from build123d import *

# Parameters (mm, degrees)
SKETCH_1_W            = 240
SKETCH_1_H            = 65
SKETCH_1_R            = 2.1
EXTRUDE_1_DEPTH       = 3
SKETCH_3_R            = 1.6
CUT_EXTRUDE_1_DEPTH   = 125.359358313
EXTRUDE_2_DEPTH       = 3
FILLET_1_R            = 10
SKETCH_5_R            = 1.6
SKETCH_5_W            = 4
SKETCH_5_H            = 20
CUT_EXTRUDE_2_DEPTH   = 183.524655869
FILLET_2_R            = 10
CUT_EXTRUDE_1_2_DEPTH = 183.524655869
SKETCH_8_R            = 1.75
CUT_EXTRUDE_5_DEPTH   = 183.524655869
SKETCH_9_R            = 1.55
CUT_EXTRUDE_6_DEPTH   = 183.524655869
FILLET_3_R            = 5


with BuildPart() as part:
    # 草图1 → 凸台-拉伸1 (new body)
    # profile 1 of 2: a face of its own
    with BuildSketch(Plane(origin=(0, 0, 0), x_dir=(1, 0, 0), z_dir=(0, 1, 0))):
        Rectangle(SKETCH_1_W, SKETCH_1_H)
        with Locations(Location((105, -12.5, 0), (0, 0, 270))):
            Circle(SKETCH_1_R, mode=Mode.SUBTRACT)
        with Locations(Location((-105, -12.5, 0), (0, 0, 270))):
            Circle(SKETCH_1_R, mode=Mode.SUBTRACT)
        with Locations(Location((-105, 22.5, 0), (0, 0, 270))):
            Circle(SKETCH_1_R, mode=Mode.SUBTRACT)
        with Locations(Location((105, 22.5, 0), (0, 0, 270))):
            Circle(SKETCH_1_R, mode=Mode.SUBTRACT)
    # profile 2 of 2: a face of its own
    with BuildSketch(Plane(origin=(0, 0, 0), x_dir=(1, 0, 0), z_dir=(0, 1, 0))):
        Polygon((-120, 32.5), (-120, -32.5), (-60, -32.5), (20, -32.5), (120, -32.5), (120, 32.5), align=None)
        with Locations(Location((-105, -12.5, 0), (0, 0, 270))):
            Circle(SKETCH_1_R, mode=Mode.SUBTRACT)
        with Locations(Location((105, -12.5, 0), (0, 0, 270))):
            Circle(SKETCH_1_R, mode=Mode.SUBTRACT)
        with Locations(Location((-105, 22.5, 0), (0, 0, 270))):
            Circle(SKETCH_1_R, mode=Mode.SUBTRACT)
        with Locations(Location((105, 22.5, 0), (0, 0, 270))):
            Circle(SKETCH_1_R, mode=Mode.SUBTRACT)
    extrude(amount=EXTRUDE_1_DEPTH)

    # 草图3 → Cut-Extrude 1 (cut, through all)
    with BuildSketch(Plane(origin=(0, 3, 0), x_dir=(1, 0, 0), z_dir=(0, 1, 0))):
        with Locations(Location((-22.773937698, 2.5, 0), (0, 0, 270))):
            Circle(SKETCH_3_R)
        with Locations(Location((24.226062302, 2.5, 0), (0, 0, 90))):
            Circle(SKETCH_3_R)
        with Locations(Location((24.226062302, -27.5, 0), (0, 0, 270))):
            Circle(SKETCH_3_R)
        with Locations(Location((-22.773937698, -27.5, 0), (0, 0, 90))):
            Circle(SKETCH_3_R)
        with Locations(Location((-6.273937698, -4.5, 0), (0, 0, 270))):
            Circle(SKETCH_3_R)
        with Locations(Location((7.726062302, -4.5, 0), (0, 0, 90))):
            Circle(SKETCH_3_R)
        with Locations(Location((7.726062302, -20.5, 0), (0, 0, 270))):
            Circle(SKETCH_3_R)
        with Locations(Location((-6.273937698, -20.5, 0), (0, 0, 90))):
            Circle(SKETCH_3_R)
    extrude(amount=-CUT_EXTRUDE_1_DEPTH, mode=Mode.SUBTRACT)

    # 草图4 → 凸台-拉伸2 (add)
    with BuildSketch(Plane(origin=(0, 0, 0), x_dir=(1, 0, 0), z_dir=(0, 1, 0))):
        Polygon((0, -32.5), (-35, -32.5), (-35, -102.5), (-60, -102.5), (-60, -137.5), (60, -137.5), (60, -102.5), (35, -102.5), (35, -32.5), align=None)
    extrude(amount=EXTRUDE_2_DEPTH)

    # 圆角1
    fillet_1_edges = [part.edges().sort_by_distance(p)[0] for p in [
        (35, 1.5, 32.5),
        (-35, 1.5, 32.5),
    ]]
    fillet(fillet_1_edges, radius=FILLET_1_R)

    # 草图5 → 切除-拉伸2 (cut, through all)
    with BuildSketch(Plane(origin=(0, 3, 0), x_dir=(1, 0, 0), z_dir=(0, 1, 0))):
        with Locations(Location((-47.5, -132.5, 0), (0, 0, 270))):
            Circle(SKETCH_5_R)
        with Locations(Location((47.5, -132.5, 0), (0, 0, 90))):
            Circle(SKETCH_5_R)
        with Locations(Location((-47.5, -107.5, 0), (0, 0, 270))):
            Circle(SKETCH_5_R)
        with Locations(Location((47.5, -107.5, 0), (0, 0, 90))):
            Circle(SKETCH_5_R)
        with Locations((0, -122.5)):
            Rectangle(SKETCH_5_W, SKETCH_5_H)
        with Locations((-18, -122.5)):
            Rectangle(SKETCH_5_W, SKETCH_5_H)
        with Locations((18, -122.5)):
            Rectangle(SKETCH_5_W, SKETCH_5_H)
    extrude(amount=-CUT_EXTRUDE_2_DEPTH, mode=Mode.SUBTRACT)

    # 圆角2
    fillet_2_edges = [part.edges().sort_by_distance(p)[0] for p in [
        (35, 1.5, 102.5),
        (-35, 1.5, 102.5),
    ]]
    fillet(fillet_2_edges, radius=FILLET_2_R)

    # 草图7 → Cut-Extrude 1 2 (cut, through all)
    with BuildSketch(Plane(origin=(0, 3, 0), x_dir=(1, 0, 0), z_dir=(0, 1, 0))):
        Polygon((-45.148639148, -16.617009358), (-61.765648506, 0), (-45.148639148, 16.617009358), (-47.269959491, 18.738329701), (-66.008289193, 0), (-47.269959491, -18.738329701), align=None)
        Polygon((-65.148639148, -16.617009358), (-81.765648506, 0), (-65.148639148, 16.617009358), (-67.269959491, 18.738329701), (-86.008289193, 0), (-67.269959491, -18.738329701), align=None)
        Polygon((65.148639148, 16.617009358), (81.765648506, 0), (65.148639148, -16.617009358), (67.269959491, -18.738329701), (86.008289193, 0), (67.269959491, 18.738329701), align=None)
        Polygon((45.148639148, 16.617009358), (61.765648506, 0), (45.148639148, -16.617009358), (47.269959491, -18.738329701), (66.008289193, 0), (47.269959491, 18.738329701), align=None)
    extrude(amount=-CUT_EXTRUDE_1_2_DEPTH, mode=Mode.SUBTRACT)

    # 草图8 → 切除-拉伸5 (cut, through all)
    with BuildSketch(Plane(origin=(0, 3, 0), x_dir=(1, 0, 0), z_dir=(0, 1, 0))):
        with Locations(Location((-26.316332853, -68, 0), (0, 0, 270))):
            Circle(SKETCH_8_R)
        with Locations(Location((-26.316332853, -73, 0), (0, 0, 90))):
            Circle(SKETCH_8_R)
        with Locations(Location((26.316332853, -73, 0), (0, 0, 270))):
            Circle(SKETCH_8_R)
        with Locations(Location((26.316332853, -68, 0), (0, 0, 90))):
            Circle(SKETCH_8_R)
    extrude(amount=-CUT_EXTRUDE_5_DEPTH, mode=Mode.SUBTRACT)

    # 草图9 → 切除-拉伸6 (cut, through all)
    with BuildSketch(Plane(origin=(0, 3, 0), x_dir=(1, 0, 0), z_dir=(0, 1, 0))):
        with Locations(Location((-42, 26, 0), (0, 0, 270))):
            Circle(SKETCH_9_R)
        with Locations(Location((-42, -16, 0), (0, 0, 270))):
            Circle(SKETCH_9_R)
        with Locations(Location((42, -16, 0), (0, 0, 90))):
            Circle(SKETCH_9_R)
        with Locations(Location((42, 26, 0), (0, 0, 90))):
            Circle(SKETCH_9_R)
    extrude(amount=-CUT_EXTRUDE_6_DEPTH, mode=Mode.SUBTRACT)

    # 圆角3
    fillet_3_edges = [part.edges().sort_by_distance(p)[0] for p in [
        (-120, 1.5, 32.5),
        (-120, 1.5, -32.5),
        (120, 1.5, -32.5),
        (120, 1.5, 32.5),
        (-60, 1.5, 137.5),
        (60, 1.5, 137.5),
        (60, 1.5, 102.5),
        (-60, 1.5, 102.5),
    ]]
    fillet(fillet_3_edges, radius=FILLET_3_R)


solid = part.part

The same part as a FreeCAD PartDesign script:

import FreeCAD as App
import Part
import Sketcher

V = App.Vector


def edges_at(feature, points):
    """Names of the edges that pass closest to the given points."""
    edges = feature.Shape.Edges
    near = lambda p: min(range(len(edges)), key=lambda i: edges[i].distToShape(Part.Vertex(*p))[0])
    return sorted({f"Edge{near(p) + 1}" for p in points})


def add_polygon(sketch, points):
    """Adds a closed chain of lines whose ends are joined by coincident constraints."""
    first, n = sketch.GeometryCount, len(points)
    for a, b in zip(points, points[1:] + points[:1]):
        sketch.addGeometry(Part.LineSegment(App.Vector(*a, 0), App.Vector(*b, 0)), False)
    for i in range(n):
        sketch.addConstraint(Sketcher.Constraint("Coincident", first + i, 2, first + (i + 1) % n, 1))

doc = App.newDocument("Part")
params = doc.addObject("Spreadsheet::Sheet", "Params")
for row, (alias, value) in enumerate([
    ("sketch1_diameter", "4.2 mm"),
    ("sketch1_width", "240 mm"),
    ("sketch1_height", "65 mm"),
    ("pad1_length", "3 mm"),
    ("sketch2_diameter", "3.2 mm"),
    ("sketch3_width", "25 mm"),
    ("sketch3_width2", "120 mm"),
    ("sketch3_height", "35 mm"),
    ("pad2_length", "3 mm"),
    ("fillet_radius", "10 mm"),
    ("sketch4_diameter", "3.2 mm"),
    ("sketch4_width", "4 mm"),
    ("sketch4_height", "20 mm"),
    ("fillet2_radius", "10 mm"),
    ("sketch5_length", "3 mm"),
    ("sketch5_length2", "23.5 mm"),
    ("sketch6_diameter", "3.5 mm"),
    ("sketch7_diameter", "3.1 mm"),
    ("fillet3_radius", "5 mm"),
], start=1):
    params.set(f"A{row}", alias)
    params.set(f"B{row}", "=" + value)
    params.setAlias(f"B{row}", alias)

body = doc.addObject("PartDesign::Body", "Body")

sketch1 = body.newObject("Sketcher::SketchObject", "Sketch")
sketch1.AttachmentSupport = (doc.getObject("XZ_Plane"), [""])
sketch1.MapMode = "FlatFace"
add_polygon(sketch1, [(-120, -32.5), (-120, 32.5), (120, 32.5), (120, -32.5)])
sketch1.addGeometry(Part.Circle(V(-105, 12.5, 0), V(0, 0, 1), 2.1), False)
sketch1.addGeometry(Part.Circle(V(105, 12.5, 0), V(0, 0, 1), 2.1), False)
sketch1.addGeometry(Part.Circle(V(-105, -22.5, 0), V(0, 0, 1), 2.1), False)
sketch1.addGeometry(Part.Circle(V(105, -22.5, 0), V(0, 0, 1), 2.1), False)
sketch1.addConstraint([
    Sketcher.Constraint("Vertical", 0),
    Sketcher.Constraint("Horizontal", 1),
    Sketcher.Constraint("Vertical", 2),
    Sketcher.Constraint("Horizontal", 3),
    Sketcher.Constraint("Equal", 4, 5),
    Sketcher.Constraint("Equal", 5, 6),
    Sketcher.Constraint("Equal", 6, 7),
    Sketcher.Constraint("Symmetric", 0, 2, 2, 2, -1, 1),
    Sketcher.Constraint("Symmetric", 4, 3, 5, 3, -2),
    Sketcher.Constraint("Symmetric", 6, 3, 7, 3, -2),
    Sketcher.Constraint("Vertical", 4, 3, 6, 3),
    Sketcher.Constraint("Diameter", 4, 4.2),
    Sketcher.Constraint("DistanceX", 1, 1, 1, 2, 240.0),
    Sketcher.Constraint("DistanceY", 0, 1, 0, 2, 65.0),
    Sketcher.Constraint("DistanceX", 4, 3, -1, 1, 105.0),
    Sketcher.Constraint("DistanceY", 6, 3, 4, 3, 35.0),
    Sketcher.Constraint("DistanceY", 4, 3, 0, 2, 20.0),
])
sketch1.setExpression("Constraints[15]", "Params.sketch1_diameter")
sketch1.setExpression("Constraints[16]", "Params.sketch1_width")
sketch1.setExpression("Constraints[17]", "Params.sketch1_height")
pad1 = body.newObject("PartDesign::Pad", "Pad")
pad1.Profile = sketch1
pad1.setExpression("Length", "Params.pad1_length")
pad1.Reversed = True

sketch2 = body.newObject("Sketcher::SketchObject", "Sketch001")
sketch2.AttachmentSupport = (doc.getObject("XZ_Plane"), [""])
sketch2.MapMode = "FlatFace"
sketch2.AttachmentOffset = App.Placement(V(0, 0, -3), App.Rotation())
sketch2.addGeometry([
    Part.Circle(V(-22.773938, -2.5, 0), V(0, 0, 1), 1.6),
    Part.Circle(V(24.226062, -2.5, 0), V(0, 0, 1), 1.6),
    Part.Circle(V(24.226062, 27.5, 0), V(0, 0, 1), 1.6),
    Part.Circle(V(-22.773938, 27.5, 0), V(0, 0, 1), 1.6),
    Part.Circle(V(-6.273938, 4.5, 0), V(0, 0, 1), 1.6),
    Part.Circle(V(7.726062, 4.5, 0), V(0, 0, 1), 1.6),
    Part.Circle(V(7.726062, 20.5, 0), V(0, 0, 1), 1.6),
    Part.Circle(V(-6.273938, 20.5, 0), V(0, 0, 1), 1.6),
], False)
sketch2.addConstraint([
    Sketcher.Constraint("Equal", 0, 1),
    Sketcher.Constraint("Equal", 1, 2),
    Sketcher.Constraint("Equal", 2, 3),
    Sketcher.Constraint("Equal", 3, 4),
    Sketcher.Constraint("Equal", 4, 5),
    Sketcher.Constraint("Equal", 5, 6),
    Sketcher.Constraint("Equal", 6, 7),
    Sketcher.Constraint("Horizontal", 0, 3, 1, 3),
    Sketcher.Constraint("Horizontal", 2, 3, 3, 3),
    Sketcher.Constraint("Horizontal", 4, 3, 5, 3),
    Sketcher.Constraint("Horizontal", 6, 3, 7, 3),
    Sketcher.Constraint("Vertical", 1, 3, 2, 3),
    Sketcher.Constraint("Vertical", 0, 3, 3, 3),
    Sketcher.Constraint("Vertical", 5, 3, 6, 3),
    Sketcher.Constraint("Vertical", 4, 3, 7, 3),
    Sketcher.Constraint("Diameter", 0, 3.2),
    Sketcher.Constraint("DistanceX", 0, 3, 1, 3, 47.0),
    Sketcher.Constraint("DistanceY", 1, 3, 2, 3, 30.0),
    Sketcher.Constraint("DistanceY", 0, 3, 4, 3, 7.0),
    Sketcher.Constraint("DistanceX", 4, 3, 5, 3, 14.0),
    Sketcher.Constraint("DistanceY", 5, 3, 6, 3, 16.0),
    Sketcher.Constraint("DistanceY", 0, 3, -1, 1, 2.5),
    Sketcher.Constraint("DistanceX", 0, 3, 4, 3, 16.5),
    Sketcher.Constraint("DistanceX", 0, 3, -1, 1, 22.773938),
])
sketch2.setExpression("Constraints[15]", "Params.sketch2_diameter")
pocket1 = body.newObject("PartDesign::Pocket", "Pocket")
pocket1.Profile = sketch2
pocket1.Type = "ThroughAll"
pocket1.Reversed = True

sketch3 = body.newObject("Sketcher::SketchObject", "Sketch002")
sketch3.AttachmentSupport = (doc.getObject("XZ_Plane"), [""])
sketch3.MapMode = "FlatFace"
add_polygon(sketch3, [(-35, 32.5), (-35, 102.5), (-60, 102.5), (-60, 137.5), (60, 137.5), (60, 102.5), (35, 102.5), (35, 32.5)])
sketch3.addConstraint([
    Sketcher.Constraint("Vertical", 0),
    Sketcher.Constraint("Horizontal", 1),
    Sketcher.Constraint("Vertical", 2),
    Sketcher.Constraint("Horizontal", 3),
    Sketcher.Constraint("Vertical", 4),
    Sketcher.Constraint("Horizontal", 5),
    Sketcher.Constraint("Vertical", 6),
    Sketcher.Constraint("Horizontal", 7),
    Sketcher.Constraint("Symmetric", 1, 2, 4, 2, -2),
    Sketcher.Constraint("Equal", 1, 5),
    Sketcher.Constraint("Equal", 7, 0),
    Sketcher.Constraint("DistanceX", 1, 2, 1, 1, 25.0),
    Sketcher.Constraint("DistanceX", 3, 1, 3, 2, 120.0),
    Sketcher.Constraint("DistanceY", 2, 1, 2, 2, 35.0),
    Sketcher.Constraint("DistanceY", -1, 1, 0, 2, 102.5),
])
sketch3.setExpression("Constraints[19]", "Params.sketch3_width")
sketch3.setExpression("Constraints[20]", "Params.sketch3_width2")
sketch3.setExpression("Constraints[21]", "Params.sketch3_height")
pad2 = body.newObject("PartDesign::Pad", "Pad001")
pad2.Profile = sketch3
pad2.setExpression("Length", "Params.pad2_length")
pad2.Reversed = True
doc.recompute()

fillet = body.newObject("PartDesign::Fillet", "Fillet")
fillet.Base = (pad2, edges_at(pad2, [(35, 1.5, 32.5), (-35, 1.5, 32.5)]))
fillet.setExpression("Radius", "Params.fillet_radius")

sketch4 = body.newObject("Sketcher::SketchObject", "Sketch003")
sketch4.AttachmentSupport = (doc.getObject("XZ_Plane"), [""])
sketch4.MapMode = "FlatFace"
sketch4.AttachmentOffset = App.Placement(V(0, 0, -3), App.Rotation())
sketch4.addGeometry(Part.Circle(V(-47.5, 132.5, 0), V(0, 0, 1), 1.6), False)
sketch4.addGeometry(Part.Circle(V(47.5, 132.5, 0), V(0, 0, 1), 1.6), False)
sketch4.addGeometry(Part.Circle(V(-47.5, 107.5, 0), V(0, 0, 1), 1.6), False)
sketch4.addGeometry(Part.Circle(V(47.5, 107.5, 0), V(0, 0, 1), 1.6), False)
add_polygon(sketch4, [(-2, 112.5), (-2, 132.5), (2, 132.5), (2, 112.5)])
add_polygon(sketch4, [(-20, 112.5), (-20, 132.5), (-16, 132.5), (-16, 112.5)])
add_polygon(sketch4, [(16, 112.5), (16, 132.5), (20, 132.5), (20, 112.5)])
sketch4.addConstraint([
    Sketcher.Constraint("Vertical", 4),
    Sketcher.Constraint("Horizontal", 5),
    Sketcher.Constraint("Vertical", 6),
    Sketcher.Constraint("Horizontal", 7),
    Sketcher.Constraint("Vertical", 8),
    Sketcher.Constraint("Horizontal", 9),
    Sketcher.Constraint("Vertical", 10),
    Sketcher.Constraint("Horizontal", 11),
    Sketcher.Constraint("Vertical", 12),
    Sketcher.Constraint("Horizontal", 13),
    Sketcher.Constraint("Vertical", 14),
    Sketcher.Constraint("Horizontal", 15),
    Sketcher.Constraint("Equal", 0, 1),
    Sketcher.Constraint("Equal", 1, 2),
    Sketcher.Constraint("Equal", 2, 3),
    Sketcher.Constraint("Symmetric", 0, 3, 1, 3, -2),
    Sketcher.Constraint("Symmetric", 2, 3, 3, 3, -2),
    Sketcher.Constraint("Symmetric", 9, 2, 12, 2, -2),
    Sketcher.Constraint("Symmetric", 11, 2, 14, 2, -2),
    Sketcher.Constraint("Horizontal", 1, 3, 4, 2),
    Sketcher.Constraint("Horizontal", 5, 2, 8, 2),
    Sketcher.Constraint("Horizontal", 7, 2, 10, 2),
    Sketcher.Constraint("Vertical", 0, 3, 2, 3),
    Sketcher.Constraint("Equal", 7, 9),
    Sketcher.Constraint("Diameter", 0, 3.2),
    Sketcher.Constraint("DistanceX", 5, 1, 5, 2, 4.0),
    Sketcher.Constraint("DistanceY", 4, 1, 4, 2, 20.0),
    Sketcher.Constraint("DistanceX", 4, 2, -1, 1, 2.0),
    Sketcher.Constraint("DistanceX", 8, 2, -1, 1, 20.0),
    Sketcher.Constraint("DistanceX", 0, 3, 1, 3, 95.0),
    Sketcher.Constraint("DistanceY", 2, 3, 0, 3, 25.0),
    Sketcher.Constraint("DistanceY", -1, 1, 0, 3, 132.5),
])
sketch4.setExpression("Constraints[36]", "Params.sketch4_diameter")
sketch4.setExpression("Constraints[37]", "Params.sketch4_width")
sketch4.setExpression("Constraints[38]", "Params.sketch4_height")
pocket2 = body.newObject("PartDesign::Pocket", "Pocket001")
pocket2.Profile = sketch4
pocket2.Type = "ThroughAll"
pocket2.Reversed = True
doc.recompute()

fillet2 = body.newObject("PartDesign::Fillet", "Fillet001")
fillet2.Base = (pocket2, edges_at(pocket2, [(35, 1.5, 102.5), (-35, 1.5, 102.5)]))
fillet2.setExpression("Radius", "Params.fillet2_radius")

sketch5 = body.newObject("Sketcher::SketchObject", "Sketch004")
sketch5.AttachmentSupport = (doc.getObject("XZ_Plane"), [""])
sketch5.MapMode = "FlatFace"
sketch5.AttachmentOffset = App.Placement(V(0, 0, -3), App.Rotation())
add_polygon(sketch5, [(-45.148639, 16.617009), (-61.765649, 0), (-45.148639, -16.617009), (-47.269959, -18.73833), (-66.008289, 0), (-47.269959, 18.73833)])
add_polygon(sketch5, [(-65.148639, 16.617009), (-81.765649, 0), (-65.148639, -16.617009), (-67.269959, -18.73833), (-86.008289, 0), (-67.269959, 18.73833)])
add_polygon(sketch5, [(65.148639, -16.617009), (81.765649, 0), (65.148639, 16.617009), (67.269959, 18.73833), (86.008289, 0), (67.269959, -18.73833)])
add_polygon(sketch5, [(45.148639, -16.617009), (61.765649, 0), (45.148639, 16.617009), (47.269959, 18.73833), (66.008289, 0), (47.269959, -18.73833)])
sketch5.addConstraint([
    Sketcher.Constraint("Symmetric", 6, 2, 12, 2, -1, 1),
    Sketcher.Constraint("Symmetric", 7, 2, 13, 2, -1, 1),
    Sketcher.Constraint("Symmetric", 8, 2, 14, 2, -1, 1),
    Sketcher.Constraint("Symmetric", 9, 2, 15, 2, -1, 1),
    Sketcher.Constraint("Symmetric", 10, 2, 16, 2, -1, 1),
    Sketcher.Constraint("Symmetric", 11, 2, 17, 2, -1, 1),
    Sketcher.Constraint("Symmetric", 0, 2, 18, 2, -1, 1),
    Sketcher.Constraint("Symmetric", 1, 2, 19, 2, -1, 1),
    Sketcher.Constraint("Symmetric", 2, 2, 20, 2, -1, 1),
    Sketcher.Constraint("Symmetric", 3, 2, 21, 2, -1, 1),
    Sketcher.Constraint("Symmetric", 4, 2, 22, 2, -1, 1),
    Sketcher.Constraint("Symmetric", 5, 2, 23, 2, -1, 1),
    Sketcher.Constraint("Symmetric", 11, 2, 13, 2, -2),
    Sketcher.Constraint("Symmetric", 10, 2, 14, 2, -2),
    Sketcher.Constraint("Symmetric", 5, 2, 19, 2, -2),
    Sketcher.Constraint("Symmetric", 4, 2, 20, 2, -2),
    Sketcher.Constraint("PointOnObject", 0, 2, -1),
    Sketcher.Constraint("PointOnObject", 3, 2, -1),
    Sketcher.Constraint("PointOnObject", 6, 2, -1),
    Sketcher.Constraint("PointOnObject", 9, 2, -1),
    Sketcher.Constraint("Perpendicular", 0, 1),
    Sketcher.Constraint("Perpendicular", 1, 2),
    Sketcher.Constraint("Perpendicular", 2, 3),
    Sketcher.Constraint("Perpendicular", 5, 6),
    Sketcher.Constraint("Perpendicular", 7, 8),
    Sketcher.Constraint("Perpendicular", 8, 9),
    Sketcher.Constraint("Horizontal", 1, 2, 7, 2),
    Sketcher.Constraint("Horizontal", 2, 2, 8, 2),
    Sketcher.Constraint("Distance", 2, 3.0),
    Sketcher.Constraint("DistanceX", 6, 2, 0, 2, 20.0),
    Sketcher.Constraint("Distance", 0, 23.5),
    Sketcher.Constraint("DistanceX", 4, 2, 13, 2, 112.418599),
])
sketch5.setExpression("Constraints[52]", "Params.sketch5_length")
sketch5.setExpression("Constraints[54]", "Params.sketch5_length2")
pocket3 = body.newObject("PartDesign::Pocket", "Pocket002")
pocket3.Profile = sketch5
pocket3.Type = "ThroughAll"
pocket3.Reversed = True

sketch6 = body.newObject("Sketcher::SketchObject", "Sketch005")
sketch6.AttachmentSupport = (doc.getObject("XZ_Plane"), [""])
sketch6.MapMode = "FlatFace"
sketch6.AttachmentOffset = App.Placement(V(0, 0, -3), App.Rotation())
sketch6.addGeometry([
    Part.Circle(V(-26.316333, 68, 0), V(0, 0, 1), 1.75),
    Part.Circle(V(-26.316333, 73, 0), V(0, 0, 1), 1.75),
    Part.Circle(V(26.316333, 73, 0), V(0, 0, 1), 1.75),
    Part.Circle(V(26.316333, 68, 0), V(0, 0, 1), 1.75),
], False)
sketch6.addConstraint([
    Sketcher.Constraint("Equal", 0, 1),
    Sketcher.Constraint("Equal", 1, 2),
    Sketcher.Constraint("Equal", 2, 3),
    Sketcher.Constraint("Symmetric", 1, 3, 2, 3, -2),
    Sketcher.Constraint("Symmetric", 0, 3, 3, 3, -2),
    Sketcher.Constraint("Vertical", 0, 3, 1, 3),
    Sketcher.Constraint("Diameter", 0, 3.5),
    Sketcher.Constraint("DistanceY", -1, 1, 0, 3, 68.0),
    Sketcher.Constraint("DistanceY", -1, 1, 1, 3, 73.0),
    Sketcher.Constraint("DistanceX", 0, 3, -1, 1, 26.316333),
])
sketch6.setExpression("Constraints[6]", "Params.sketch6_diameter")
pocket4 = body.newObject("PartDesign::Pocket", "Pocket003")
pocket4.Profile = sketch6
pocket4.Type = "ThroughAll"
pocket4.Reversed = True

sketch7 = body.newObject("Sketcher::SketchObject", "Sketch006")
sketch7.AttachmentSupport = (doc.getObject("XZ_Plane"), [""])
sketch7.MapMode = "FlatFace"
sketch7.AttachmentOffset = App.Placement(V(0, 0, -3), App.Rotation())
sketch7.addGeometry([
    Part.Circle(V(-42, -26, 0), V(0, 0, 1), 1.55),
    Part.Circle(V(-42, 16, 0), V(0, 0, 1), 1.55),
    Part.Circle(V(42, 16, 0), V(0, 0, 1), 1.55),
    Part.Circle(V(42, -26, 0), V(0, 0, 1), 1.55),
], False)
sketch7.addConstraint([
    Sketcher.Constraint("Equal", 0, 1),
    Sketcher.Constraint("Equal", 1, 2),
    Sketcher.Constraint("Equal", 2, 3),
    Sketcher.Constraint("Symmetric", 1, 3, 2, 3, -2),
    Sketcher.Constraint("Symmetric", 0, 3, 3, 3, -2),
    Sketcher.Constraint("Vertical", 0, 3, 1, 3),
    Sketcher.Constraint("Diameter", 0, 3.1),
    Sketcher.Constraint("DistanceX", 0, 3, -1, 1, 42.0),
    Sketcher.Constraint("DistanceY", 0, 3, -1, 1, 26.0),
    Sketcher.Constraint("DistanceY", -1, 1, 1, 3, 16.0),
])
sketch7.setExpression("Constraints[6]", "Params.sketch7_diameter")
pocket5 = body.newObject("PartDesign::Pocket", "Pocket004")
pocket5.Profile = sketch7
pocket5.Type = "ThroughAll"
pocket5.Reversed = True
doc.recompute()

fillet3 = body.newObject("PartDesign::Fillet", "Fillet002")
fillet3.Base = (pocket5, edges_at(pocket5, [
    (-120, 1.5, 32.5),
    (-120, 1.5, -32.5),
    (120, 1.5, -32.5),
    (120, 1.5, 32.5),
    (-60, 1.5, 137.5),
    (60, 1.5, 137.5),
    (60, 1.5, 102.5),
    (-60, 1.5, 102.5),
]))
fillet3.setExpression("Radius", "Params.fillet3_radius")

doc.recompute()
